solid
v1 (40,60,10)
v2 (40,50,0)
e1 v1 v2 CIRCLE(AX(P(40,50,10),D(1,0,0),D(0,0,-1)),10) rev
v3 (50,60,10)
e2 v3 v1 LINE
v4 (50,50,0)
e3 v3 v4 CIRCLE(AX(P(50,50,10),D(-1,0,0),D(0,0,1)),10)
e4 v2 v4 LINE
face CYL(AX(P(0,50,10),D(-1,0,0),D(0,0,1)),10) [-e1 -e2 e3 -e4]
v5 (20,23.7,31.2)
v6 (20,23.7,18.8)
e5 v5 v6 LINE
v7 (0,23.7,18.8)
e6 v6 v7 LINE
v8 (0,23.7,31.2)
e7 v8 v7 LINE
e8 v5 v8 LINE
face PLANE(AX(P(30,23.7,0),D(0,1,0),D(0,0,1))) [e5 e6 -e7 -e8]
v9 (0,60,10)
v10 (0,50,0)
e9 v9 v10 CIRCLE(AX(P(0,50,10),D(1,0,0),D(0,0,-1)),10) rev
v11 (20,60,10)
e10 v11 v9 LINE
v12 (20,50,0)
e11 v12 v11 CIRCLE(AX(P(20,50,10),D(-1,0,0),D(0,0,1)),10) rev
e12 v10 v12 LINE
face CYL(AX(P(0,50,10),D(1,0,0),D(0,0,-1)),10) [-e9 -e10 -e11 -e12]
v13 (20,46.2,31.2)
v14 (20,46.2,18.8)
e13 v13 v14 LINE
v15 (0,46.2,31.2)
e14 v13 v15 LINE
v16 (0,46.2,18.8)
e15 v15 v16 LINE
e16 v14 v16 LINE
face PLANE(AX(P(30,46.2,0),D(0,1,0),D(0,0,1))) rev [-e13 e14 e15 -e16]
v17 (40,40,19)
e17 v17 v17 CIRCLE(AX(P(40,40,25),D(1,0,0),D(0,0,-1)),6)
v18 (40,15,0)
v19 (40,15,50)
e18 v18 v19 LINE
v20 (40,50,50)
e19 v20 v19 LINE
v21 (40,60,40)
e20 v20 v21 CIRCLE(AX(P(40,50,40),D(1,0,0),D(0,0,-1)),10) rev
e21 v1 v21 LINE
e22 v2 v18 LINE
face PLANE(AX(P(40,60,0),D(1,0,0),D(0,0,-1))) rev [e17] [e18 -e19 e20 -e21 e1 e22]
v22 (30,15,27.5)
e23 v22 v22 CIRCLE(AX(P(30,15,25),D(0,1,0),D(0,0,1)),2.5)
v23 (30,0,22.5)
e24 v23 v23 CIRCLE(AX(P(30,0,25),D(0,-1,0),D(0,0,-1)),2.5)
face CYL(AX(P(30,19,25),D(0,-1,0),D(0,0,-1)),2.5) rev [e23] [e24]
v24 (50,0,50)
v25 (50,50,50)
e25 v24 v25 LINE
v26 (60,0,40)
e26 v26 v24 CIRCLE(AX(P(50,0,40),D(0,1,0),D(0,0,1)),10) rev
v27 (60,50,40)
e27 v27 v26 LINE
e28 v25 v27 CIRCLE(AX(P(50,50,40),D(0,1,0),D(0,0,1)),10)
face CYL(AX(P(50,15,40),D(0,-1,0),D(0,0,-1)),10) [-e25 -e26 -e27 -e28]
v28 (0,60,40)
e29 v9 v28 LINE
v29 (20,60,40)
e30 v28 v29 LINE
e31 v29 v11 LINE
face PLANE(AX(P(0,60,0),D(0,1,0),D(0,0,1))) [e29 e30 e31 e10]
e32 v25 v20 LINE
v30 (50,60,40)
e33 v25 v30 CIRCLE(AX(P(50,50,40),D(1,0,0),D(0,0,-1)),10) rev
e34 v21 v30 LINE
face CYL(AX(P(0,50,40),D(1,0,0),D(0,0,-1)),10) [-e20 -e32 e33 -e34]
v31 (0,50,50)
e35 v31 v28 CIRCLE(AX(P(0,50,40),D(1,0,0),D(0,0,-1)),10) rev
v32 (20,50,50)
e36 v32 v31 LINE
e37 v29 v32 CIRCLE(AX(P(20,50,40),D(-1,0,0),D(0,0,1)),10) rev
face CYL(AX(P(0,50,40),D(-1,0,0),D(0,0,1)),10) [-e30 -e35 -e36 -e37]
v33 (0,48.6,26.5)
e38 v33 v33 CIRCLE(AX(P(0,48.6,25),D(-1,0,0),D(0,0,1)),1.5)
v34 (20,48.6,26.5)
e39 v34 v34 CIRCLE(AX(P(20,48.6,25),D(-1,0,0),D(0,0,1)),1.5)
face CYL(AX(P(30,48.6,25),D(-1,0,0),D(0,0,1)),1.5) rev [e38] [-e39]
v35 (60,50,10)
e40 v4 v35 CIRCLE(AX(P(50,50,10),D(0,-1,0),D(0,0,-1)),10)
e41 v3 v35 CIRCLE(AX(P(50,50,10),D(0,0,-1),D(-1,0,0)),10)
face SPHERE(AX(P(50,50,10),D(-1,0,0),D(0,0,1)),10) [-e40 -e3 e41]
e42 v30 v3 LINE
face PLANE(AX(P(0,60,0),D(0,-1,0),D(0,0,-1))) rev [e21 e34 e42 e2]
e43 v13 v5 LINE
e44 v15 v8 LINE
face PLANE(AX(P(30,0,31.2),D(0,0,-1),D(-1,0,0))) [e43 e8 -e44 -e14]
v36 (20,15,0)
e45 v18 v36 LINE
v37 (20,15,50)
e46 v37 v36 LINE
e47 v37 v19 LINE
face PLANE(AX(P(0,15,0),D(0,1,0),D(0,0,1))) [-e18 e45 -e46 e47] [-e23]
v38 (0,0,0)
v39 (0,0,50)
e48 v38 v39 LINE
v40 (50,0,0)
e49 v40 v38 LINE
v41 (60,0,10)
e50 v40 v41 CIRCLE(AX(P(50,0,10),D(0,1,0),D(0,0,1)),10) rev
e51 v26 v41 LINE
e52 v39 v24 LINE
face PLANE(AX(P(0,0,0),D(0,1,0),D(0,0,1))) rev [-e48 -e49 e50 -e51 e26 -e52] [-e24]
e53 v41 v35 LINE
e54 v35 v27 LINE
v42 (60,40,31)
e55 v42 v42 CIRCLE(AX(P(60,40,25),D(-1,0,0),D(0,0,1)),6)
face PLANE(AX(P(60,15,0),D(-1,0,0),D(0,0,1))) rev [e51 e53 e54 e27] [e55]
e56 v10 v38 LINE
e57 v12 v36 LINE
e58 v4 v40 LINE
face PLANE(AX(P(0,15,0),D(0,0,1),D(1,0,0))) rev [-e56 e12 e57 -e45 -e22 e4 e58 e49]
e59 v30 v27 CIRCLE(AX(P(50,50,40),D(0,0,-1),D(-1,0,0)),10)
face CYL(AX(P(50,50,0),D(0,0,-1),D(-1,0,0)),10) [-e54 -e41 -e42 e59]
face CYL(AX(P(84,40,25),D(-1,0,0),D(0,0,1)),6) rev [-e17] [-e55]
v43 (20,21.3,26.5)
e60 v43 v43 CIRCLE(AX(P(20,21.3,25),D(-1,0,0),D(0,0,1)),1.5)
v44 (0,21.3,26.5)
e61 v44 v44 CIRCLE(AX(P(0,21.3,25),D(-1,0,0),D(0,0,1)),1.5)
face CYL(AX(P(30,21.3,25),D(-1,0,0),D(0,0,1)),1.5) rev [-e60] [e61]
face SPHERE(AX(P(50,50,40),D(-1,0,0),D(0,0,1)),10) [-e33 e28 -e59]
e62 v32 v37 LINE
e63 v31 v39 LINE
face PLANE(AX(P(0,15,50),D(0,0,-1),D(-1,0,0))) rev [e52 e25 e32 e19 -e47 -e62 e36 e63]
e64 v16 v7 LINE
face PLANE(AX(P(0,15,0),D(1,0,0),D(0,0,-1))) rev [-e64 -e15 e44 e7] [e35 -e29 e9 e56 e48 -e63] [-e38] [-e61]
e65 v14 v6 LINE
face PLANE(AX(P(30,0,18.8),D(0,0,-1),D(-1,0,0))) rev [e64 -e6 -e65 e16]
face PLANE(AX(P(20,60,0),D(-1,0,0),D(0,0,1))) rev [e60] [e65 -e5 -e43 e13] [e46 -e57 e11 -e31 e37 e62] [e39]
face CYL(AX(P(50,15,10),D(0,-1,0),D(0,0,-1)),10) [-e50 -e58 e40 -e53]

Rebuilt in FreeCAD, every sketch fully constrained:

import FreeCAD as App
import Part
import Sketcher

V = App.Vector


def edges_at(feature, points):
    """Names of the edges that pass closest to the given points."""
    edges = feature.Shape.Edges
    near = lambda p: min(range(len(edges)), key=lambda i: edges[i].distToShape(Part.Vertex(*p))[0])
    return sorted({f"Edge{near(p) + 1}" for p in points})


def add_polygon(sketch, points):
    """Adds a closed chain of lines whose ends are joined by coincident constraints."""
    first, n = sketch.GeometryCount, len(points)
    for a, b in zip(points, points[1:] + points[:1]):
        sketch.addGeometry(Part.LineSegment(App.Vector(*a, 0), App.Vector(*b, 0)), False)
    for i in range(n):
        sketch.addConstraint(Sketcher.Constraint("Coincident", first + i, 2, first + (i + 1) % n, 1))

doc = App.newDocument("Part")
params = doc.addObject("Spreadsheet::Sheet", "Params")
for row, (alias, value) in enumerate([
    ("sketch1_width", "60 mm"),
    ("sketch1_height", "50 mm"),
    ("pad1_length", "15 mm"),
    ("sketch2_width", "20 mm"),
    ("sketch2_height", "50 mm"),
    ("pad2_length", "45 mm"),
    ("sketch3_diameter", "12 mm"),
    ("pocket1_length", "84 mm"),
    ("sketch4_diameter", "5 mm"),
    ("pocket2_length", "19 mm"),
    ("fillet_radius", "10 mm"),
    ("fillet2_radius", "10 mm"),
    ("sketch5_diameter", "12 mm"),
    ("sketch5_diameter2", "3 mm"),
    ("sketch5_width", "22.5 mm"),
    ("sketch5_height", "12.4 mm"),
    ("pocket3_length", "30 mm"),
], start=1):
    params.set(f"A{row}", alias)
    params.set(f"B{row}", "=" + value)
    params.setAlias(f"B{row}", alias)

body = doc.addObject("PartDesign::Body", "Body")

sketch1 = body.newObject("Sketcher::SketchObject", "Sketch")
sketch1.AttachmentSupport = (doc.getObject("XZ_Plane"), [""])
sketch1.MapMode = "FlatFace"
add_polygon(sketch1, [(0, 0), (0, 50), (60, 50), (60, 0)])
sketch1.addConstraint(Sketcher.Constraint("Vertical", 0))
sketch1.addConstraint(Sketcher.Constraint("Horizontal", 1))
sketch1.addConstraint(Sketcher.Constraint("Vertical", 2))
sketch1.addConstraint(Sketcher.Constraint("Horizontal", 3))
sketch1.addConstraint(Sketcher.Constraint("Coincident", 3, 2, -1, 1))
sketch1.addConstraint(Sketcher.Constraint("DistanceX", 1, 1, 1, 2, 60.0))
sketch1.addConstraint(Sketcher.Constraint("DistanceY", 0, 1, 0, 2, 50.0))
sketch1.setExpression("Constraints[9]", "Params.sketch1_width")
sketch1.setExpression("Constraints[10]", "Params.sketch1_height")
pad1 = body.newObject("PartDesign::Pad", "Pad")
pad1.Profile = sketch1
pad1.setExpression("Length", "Params.pad1_length")
pad1.Reversed = True

sketch2 = body.newObject("Sketcher::SketchObject", "Sketch001")
sketch2.AttachmentSupport = (doc.getObject("XZ_Plane"), [""])
sketch2.MapMode = "FlatFace"
sketch2.AttachmentOffset = App.Placement(V(0, 0, -15), App.Rotation())
add_polygon(sketch2, [(0, 0), (0, 50), (20, 50), (20, 0)])
add_polygon(sketch2, [(40, 0), (40, 50), (60, 50), (60, 0)])
sketch2.addConstraint(Sketcher.Constraint("Vertical", 0))
sketch2.addConstraint(Sketcher.Constraint("Horizontal", 1))
sketch2.addConstraint(Sketcher.Constraint("Vertical", 2))
sketch2.addConstraint(Sketcher.Constraint("Horizontal", 3))
sketch2.addConstraint(Sketcher.Constraint("Vertical", 4))
sketch2.addConstraint(Sketcher.Constraint("Horizontal", 5))
sketch2.addConstraint(Sketcher.Constraint("Vertical", 6))
sketch2.addConstraint(Sketcher.Constraint("Horizontal", 7))
sketch2.addConstraint(Sketcher.Constraint("Coincident", 3, 2, -1, 1))
sketch2.addConstraint(Sketcher.Constraint("PointOnObject", 6, 2, -1))
sketch2.addConstraint(Sketcher.Constraint("Horizontal", 1, 2, 4, 2))
sketch2.addConstraint(Sketcher.Constraint("Equal", 3, 5))
sketch2.addConstraint(Sketcher.Constraint("DistanceX", 1, 1, 1, 2, 20.0))
sketch2.addConstraint(Sketcher.Constraint("DistanceY", 0, 1, 0, 2, 50.0))
sketch2.addConstraint(Sketcher.Constraint("DistanceX", -1, 1, 4, 2, 40.0))
sketch2.setExpression("Constraints[20]", "Params.sketch2_width")
sketch2.setExpression("Constraints[21]", "Params.sketch2_height")
pad2 = body.newObject("PartDesign::Pad", "Pad001")
pad2.Profile = sketch2
pad2.setExpression("Length", "Params.pad2_length")
pad2.Reversed = True

sketch3 = body.newObject("Sketcher::SketchObject", "Sketch002")
sketch3.AttachmentSupport = (doc.getObject("YZ_Plane"), [""])
sketch3.MapMode = "FlatFace"
sketch3.addGeometry(Part.Circle(V(40, 25, 0), V(0, 0, 1), 6), False)
sketch3.addConstraint(Sketcher.Constraint("Diameter", 0, 12.0))
sketch3.addConstraint(Sketcher.Constraint("DistanceX", -1, 1, 0, 3, 40.0))
sketch3.addConstraint(Sketcher.Constraint("DistanceY", -1, 1, 0, 3, 25.0))
sketch3.setExpression("Constraints[0]", "Params.sketch3_diameter")
pocket1 = body.newObject("PartDesign::Pocket", "Pocket")
pocket1.Profile = sketch3
pocket1.setExpression("Length", "Params.pocket1_length")
pocket1.Reversed = True

sketch4 = body.newObject("Sketcher::SketchObject", "Sketch003")
sketch4.AttachmentSupport = (doc.getObject("XZ_Plane"), [""])
sketch4.MapMode = "FlatFace"
sketch4.addGeometry(Part.Circle(V(30, 25, 0), V(0, 0, 1), 2.5), False)
sketch4.addConstraint(Sketcher.Constraint("Diameter", 0, 5.0))
sketch4.addConstraint(Sketcher.Constraint("DistanceX", -1, 1, 0, 3, 30.0))
sketch4.addConstraint(Sketcher.Constraint("DistanceY", -1, 1, 0, 3, 25.0))
sketch4.setExpression("Constraints[0]", "Params.sketch4_diameter")
pocket2 = body.newObject("PartDesign::Pocket", "Pocket001")
pocket2.Profile = sketch4
pocket2.setExpression("Length", "Params.pocket2_length")
doc.recompute()

fillet = body.newObject("PartDesign::Fillet", "Fillet")
fillet.Base = (pocket2, edges_at(pocket2, [
    (10, 60, 50),
    (10, 60, 0),
    (50, 60, 0),
    (50, 60, 50),
]))
fillet.setExpression("Radius", "Params.fillet_radius")
doc.recompute()

fillet2 = body.newObject("PartDesign::Fillet", "Fillet001")
fillet2.Base = (fillet, edges_at(fillet, [
    (60, 25, 50),
    (60, 60, 25),
    (60, 25, 0),
    (60, 57.071, 2.929),
    (60, 57.071, 47.071),
]))
fillet2.setExpression("Radius", "Params.fillet2_radius")

sketch5 = body.newObject("Sketcher::SketchObject", "Sketch004")
sketch5.AttachmentSupport = (doc.getObject("YZ_Plane"), [""])
sketch5.MapMode = "FlatFace"
add_polygon(sketch5, [(46.2, 31.2), (46.2, 18.8), (23.7, 18.8), (23.7, 31.2)])
sketch5.addGeometry(Part.Circle(V(40, 25, 0), V(0, 0, 1), 6), False)
sketch5.addGeometry(Part.Circle(V(48.6, 25, 0), V(0, 0, 1), 1.5), False)
sketch5.addGeometry(Part.Circle(V(21.3, 25, 0), V(0, 0, 1), 1.5), False)
sketch5.addConstraint(Sketcher.Constraint("Vertical", 0))
sketch5.addConstraint(Sketcher.Constraint("Horizontal", 1))
sketch5.addConstraint(Sketcher.Constraint("Vertical", 2))
sketch5.addConstraint(Sketcher.Constraint("Horizontal", 3))
sketch5.addConstraint(Sketcher.Constraint("Equal", 5, 6))
sketch5.addConstraint(Sketcher.Constraint("Horizontal", 4, 3, 5, 3))
sketch5.addConstraint(Sketcher.Constraint("Horizontal", 5, 3, 6, 3))
sketch5.addConstraint(Sketcher.Constraint("Diameter", 4, 12.0))
sketch5.addConstraint(Sketcher.Constraint("Diameter", 5, 3.0))
sketch5.addConstraint(Sketcher.Constraint("DistanceX", 1, 2, 1, 1, 22.5))
sketch5.addConstraint(Sketcher.Constraint("DistanceY", 0, 2, 0, 1, 12.4))
sketch5.addConstraint(Sketcher.Constraint("DistanceX", -1, 1, 4, 3, 40.0))
sketch5.addConstraint(Sketcher.Constraint("DistanceY", -1, 1, 4, 3, 25.0))
sketch5.addConstraint(Sketcher.Constraint("DistanceX", -1, 1, 5, 3, 48.6))
sketch5.addConstraint(Sketcher.Constraint("DistanceX", -1, 1, 6, 3, 21.3))
sketch5.addConstraint(Sketcher.Constraint("DistanceX", -1, 1, 0, 2, 46.2))
sketch5.addConstraint(Sketcher.Constraint("DistanceY", -1, 1, 0, 2, 18.8))
sketch5.setExpression("Constraints[11]", "Params.sketch5_diameter")
sketch5.setExpression("Constraints[12]", "Params.sketch5_diameter2")
sketch5.setExpression("Constraints[13]", "Params.sketch5_width")
sketch5.setExpression("Constraints[14]", "Params.sketch5_height")
pocket3 = body.newObject("PartDesign::Pocket", "Pocket002")
pocket3.Profile = sketch5
pocket3.setExpression("Length", "Params.pocket3_length")
pocket3.Reversed = True

doc.recompute()
